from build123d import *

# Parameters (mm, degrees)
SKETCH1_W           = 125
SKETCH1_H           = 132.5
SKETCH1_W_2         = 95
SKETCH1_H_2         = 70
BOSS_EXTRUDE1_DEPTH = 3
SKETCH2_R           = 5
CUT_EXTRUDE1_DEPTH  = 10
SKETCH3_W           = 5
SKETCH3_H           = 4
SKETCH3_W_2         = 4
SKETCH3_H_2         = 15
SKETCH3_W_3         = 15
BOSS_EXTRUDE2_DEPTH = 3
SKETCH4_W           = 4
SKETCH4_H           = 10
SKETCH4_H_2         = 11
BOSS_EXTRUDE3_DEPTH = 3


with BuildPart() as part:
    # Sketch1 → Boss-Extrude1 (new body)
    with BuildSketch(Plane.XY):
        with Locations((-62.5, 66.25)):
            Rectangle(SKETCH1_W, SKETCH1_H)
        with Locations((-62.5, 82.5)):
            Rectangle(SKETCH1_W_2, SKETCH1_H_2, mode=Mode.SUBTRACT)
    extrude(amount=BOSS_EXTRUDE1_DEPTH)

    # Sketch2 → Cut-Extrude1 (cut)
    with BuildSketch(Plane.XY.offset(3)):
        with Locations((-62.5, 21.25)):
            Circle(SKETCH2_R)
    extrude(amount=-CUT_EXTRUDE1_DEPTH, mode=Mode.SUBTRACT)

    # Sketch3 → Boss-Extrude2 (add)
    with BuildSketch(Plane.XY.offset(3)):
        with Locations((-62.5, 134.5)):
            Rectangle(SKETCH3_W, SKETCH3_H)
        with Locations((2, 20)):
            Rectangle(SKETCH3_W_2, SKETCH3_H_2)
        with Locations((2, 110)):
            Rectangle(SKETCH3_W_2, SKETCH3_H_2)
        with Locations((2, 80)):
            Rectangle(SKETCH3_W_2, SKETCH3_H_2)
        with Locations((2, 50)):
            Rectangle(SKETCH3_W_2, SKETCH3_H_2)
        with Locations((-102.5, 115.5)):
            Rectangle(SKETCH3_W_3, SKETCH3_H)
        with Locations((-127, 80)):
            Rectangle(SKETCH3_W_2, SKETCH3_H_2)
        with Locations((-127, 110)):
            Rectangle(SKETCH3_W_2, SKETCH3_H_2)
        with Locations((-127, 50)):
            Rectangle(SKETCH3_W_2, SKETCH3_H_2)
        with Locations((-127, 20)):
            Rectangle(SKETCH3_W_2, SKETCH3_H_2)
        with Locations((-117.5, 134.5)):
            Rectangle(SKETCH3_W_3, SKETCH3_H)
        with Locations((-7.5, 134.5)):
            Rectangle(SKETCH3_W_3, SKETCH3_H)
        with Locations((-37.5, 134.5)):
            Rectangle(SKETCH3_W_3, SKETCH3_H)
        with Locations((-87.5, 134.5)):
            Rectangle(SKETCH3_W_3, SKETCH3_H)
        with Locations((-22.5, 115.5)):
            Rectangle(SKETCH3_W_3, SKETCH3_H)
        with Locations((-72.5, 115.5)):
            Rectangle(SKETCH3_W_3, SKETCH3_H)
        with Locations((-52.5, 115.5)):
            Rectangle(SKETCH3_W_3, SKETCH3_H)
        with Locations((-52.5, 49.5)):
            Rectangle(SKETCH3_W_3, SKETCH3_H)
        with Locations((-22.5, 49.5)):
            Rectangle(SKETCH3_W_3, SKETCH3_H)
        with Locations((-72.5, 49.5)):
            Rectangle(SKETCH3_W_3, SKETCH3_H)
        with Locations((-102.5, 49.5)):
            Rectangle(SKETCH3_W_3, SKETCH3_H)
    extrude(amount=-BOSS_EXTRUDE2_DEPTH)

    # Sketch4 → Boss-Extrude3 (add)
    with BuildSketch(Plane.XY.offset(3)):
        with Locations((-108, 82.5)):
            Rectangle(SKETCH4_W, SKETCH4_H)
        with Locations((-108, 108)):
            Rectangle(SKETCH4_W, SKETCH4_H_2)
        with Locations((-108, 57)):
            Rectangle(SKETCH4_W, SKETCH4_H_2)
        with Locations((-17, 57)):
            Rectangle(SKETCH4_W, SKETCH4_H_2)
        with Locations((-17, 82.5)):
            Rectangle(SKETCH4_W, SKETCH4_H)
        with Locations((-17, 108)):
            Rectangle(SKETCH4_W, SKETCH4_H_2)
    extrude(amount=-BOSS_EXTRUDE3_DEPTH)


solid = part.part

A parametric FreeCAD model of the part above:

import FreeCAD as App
import Part
import Sketcher
from FreeCAD import Vector
Q = App.Units.Quantity

doc = App.newDocument("Part")
body = doc.addObject("PartDesign::Body", "Body")

# Sketch on XY plane
sketch1 = body.newObject("Sketcher::SketchObject", "Sketch")
sketch1.AttachmentSupport = (doc.getObject("XY_Plane"), [""])
sketch1.MapMode = "FlatFace"
sketch1.addGeometry([
    Part.LineSegment(Vector(-125, 132.5, 0), Vector(-125, 0, 0)),  # 0
    Part.LineSegment(Vector(-125, 0, 0), Vector(0, 0, 0)),  # 1
    Part.LineSegment(Vector(0, 0, 0), Vector(0, 132.5, 0)),  # 2
    Part.LineSegment(Vector(0, 132.5, 0), Vector(-125, 132.5, 0)),  # 3
    Part.LineSegment(Vector(-15, 47.5, 0), Vector(-110, 47.5, 0)),  # 4
    Part.LineSegment(Vector(-110, 47.5, 0), Vector(-110, 117.5, 0)),  # 5
    Part.LineSegment(Vector(-110, 117.5, 0), Vector(-15, 117.5, 0)),  # 6
    Part.LineSegment(Vector(-15, 117.5, 0), Vector(-15, 47.5, 0)),  # 7
], False)
sketch1.addConstraint([
    Sketcher.Constraint("Coincident", 0, 2, 1, 1),
    Sketcher.Constraint("Coincident", 1, 2, 2, 1),
    Sketcher.Constraint("Coincident", 2, 2, 3, 1),
    Sketcher.Constraint("Coincident", 3, 2, 0, 1),
    Sketcher.Constraint("Coincident", 4, 2, 5, 1),
    Sketcher.Constraint("Coincident", 5, 2, 6, 1),
    Sketcher.Constraint("Coincident", 6, 2, 7, 1),
    Sketcher.Constraint("Coincident", 7, 2, 4, 1),
    Sketcher.Constraint("Vertical", 0),
    Sketcher.Constraint("Horizontal", 1),
    Sketcher.Constraint("Vertical", 2),
    Sketcher.Constraint("Horizontal", 3),
    Sketcher.Constraint("Horizontal", 4),
    Sketcher.Constraint("Vertical", 5),
    Sketcher.Constraint("Horizontal", 6),
    Sketcher.Constraint("Vertical", 7),
    Sketcher.Constraint("Coincident", 1, 2, -1, 1),
    Sketcher.Constraint("DistanceX", 1, 1, 1, 2, Q("125 mm")),
    Sketcher.Constraint("DistanceX", 4, 2, 4, 1, Q("95 mm")),
    Sketcher.Constraint("DistanceY", 5, 1, 5, 2, Q("70 mm")),
    Sketcher.Constraint("DistanceY", 0, 2, 0, 1, Q("132.5 mm")),
    Sketcher.Constraint("DistanceX", 4, 2, -1, 1, Q("110 mm")),
    Sketcher.Constraint("DistanceY", 4, 2, 3, 2, Q("85 mm")),
])
pad1 = body.newObject("PartDesign::Pad", "Pad")
pad1.Profile = sketch1
pad1.Length = 3

# Sketch on XY plane
sketch2 = body.newObject("Sketcher::SketchObject", "Sketch001")
sketch2.AttachmentSupport = (doc.getObject("XY_Plane"), [""])
sketch2.MapMode = "FlatFace"
sketch2.AttachmentOffset = App.Placement(Vector(0, 0, 3), App.Rotation())
sketch2.addGeometry(Part.Circle(Vector(-62.5, 21.25, 0), Vector(0, 0, 1), 5), False)
sketch2.addConstraint([
    Sketcher.Constraint("Diameter", 0, Q("10 mm")),
    Sketcher.Constraint("DistanceX", 0, 3, -1, 1, Q("62.5 mm")),
    Sketcher.Constraint("DistanceY", -1, 1, 0, 3, Q("21.25 mm")),
])
pocket1 = body.newObject("PartDesign::Pocket", "Pocket")
pocket1.Profile = sketch2
pocket1.Length = 10

# Sketch on XY plane
sketch3 = body.newObject("Sketcher::SketchObject", "Sketch002")
sketch3.AttachmentSupport = (doc.getObject("XY_Plane"), [""])
sketch3.MapMode = "FlatFace"
sketch3.AttachmentOffset = App.Placement(Vector(0, 0, 3), App.Rotation())
sketch3.addGeometry([
    Part.LineSegment(Vector(-65, 136.5, 0), Vector(-65, 132.5, 0)),  # 0
    Part.LineSegment(Vector(-65, 132.5, 0), Vector(-60, 132.5, 0)),  # 1
    Part.LineSegment(Vector(-60, 132.5, 0), Vector(-60, 136.5, 0)),  # 2
    Part.LineSegment(Vector(-60, 136.5, 0), Vector(-65, 136.5, 0)),  # 3
    Part.LineSegment(Vector(0, 27.5, 0), Vector(0, 12.5, 0)),  # 4
    Part.LineSegment(Vector(0, 12.5, 0), Vector(4, 12.5, 0)),  # 5
    Part.LineSegment(Vector(4, 12.5, 0), Vector(4, 27.5, 0)),  # 6
    Part.LineSegment(Vector(4, 27.5, 0), Vector(0, 27.5, 0)),  # 7
    Part.LineSegment(Vector(0, 117.5, 0), Vector(0, 102.5, 0)),  # 8
    Part.LineSegment(Vector(0, 102.5, 0), Vector(4, 102.5, 0)),  # 9
    Part.LineSegment(Vector(4, 102.5, 0), Vector(4, 117.5, 0)),  # 10
    Part.LineSegment(Vector(4, 117.5, 0), Vector(0, 117.5, 0)),  # 11
    Part.LineSegment(Vector(0, 87.5, 0), Vector(0, 72.5, 0)),  # 12
    Part.LineSegment(Vector(0, 72.5, 0), Vector(4, 72.5, 0)),  # 13
    Part.LineSegment(Vector(4, 72.5, 0), Vector(4, 87.5, 0)),  # 14
    Part.LineSegment(Vector(4, 87.5, 0), Vector(0, 87.5, 0)),  # 15
    Part.LineSegment(Vector(0, 57.5, 0), Vector(0, 42.5, 0)),  # 16
    Part.LineSegment(Vector(0, 42.5, 0), Vector(4, 42.5, 0)),  # 17
    Part.LineSegment(Vector(4, 42.5, 0), Vector(4, 57.5, 0)),  # 18
    Part.LineSegment(Vector(4, 57.5, 0), Vector(0, 57.5, 0)),  # 19
    Part.LineSegment(Vector(-110, 117.5, 0), Vector(-110, 113.5, 0)),  # 20
    Part.LineSegment(Vector(-110, 113.5, 0), Vector(-95, 113.5, 0)),  # 21
    Part.LineSegment(Vector(-95, 113.5, 0), Vector(-95, 117.5, 0)),  # 22
    Part.LineSegment(Vector(-95, 117.5, 0), Vector(-110, 117.5, 0)),  # 23
    Part.LineSegment(Vector(-129, 87.5, 0), Vector(-129, 72.5, 0)),  # 24
    Part.LineSegment(Vector(-129, 72.5, 0), Vector(-125, 72.5, 0)),  # 25
    Part.LineSegment(Vector(-125, 72.5, 0), Vector(-125, 87.5, 0)),  # 26
    Part.LineSegment(Vector(-125, 87.5, 0), Vector(-129, 87.5, 0)),  # 27
    Part.LineSegment(Vector(-129, 117.5, 0), Vector(-129, 102.5, 0)),  # 28
    Part.LineSegment(Vector(-129, 102.5, 0), Vector(-125, 102.5, 0)),  # 29
    Part.LineSegment(Vector(-125, 102.5, 0), Vector(-125, 117.5, 0)),  # 30
    Part.LineSegment(Vector(-125, 117.5, 0), Vector(-129, 117.5, 0)),  # 31
    Part.LineSegment(Vector(-129, 57.5, 0), Vector(-129, 42.5, 0)),  # 32
    Part.LineSegment(Vector(-129, 42.5, 0), Vector(-125, 42.5, 0)),  # 33
    Part.LineSegment(Vector(-125, 42.5, 0), Vector(-125, 57.5, 0)),  # 34
    Part.LineSegment(Vector(-125, 57.5, 0), Vector(-129, 57.5, 0)),  # 35
    Part.LineSegment(Vector(-129, 27.5, 0), Vector(-129, 12.5, 0)),  # 36
    Part.LineSegment(Vector(-129, 12.5, 0), Vector(-125, 12.5, 0)),  # 37
    Part.LineSegment(Vector(-125, 12.5, 0), Vector(-125, 27.5, 0)),  # 38
    Part.LineSegment(Vector(-125, 27.5, 0), Vector(-129, 27.5, 0)),  # 39
    Part.LineSegment(Vector(-125, 136.5, 0), Vector(-125, 132.5, 0)),  # 40
    Part.LineSegment(Vector(-125, 132.5, 0), Vector(-110, 132.5, 0)),  # 41
    Part.LineSegment(Vector(-110, 132.5, 0), Vector(-110, 136.5, 0)),  # 42
    Part.LineSegment(Vector(-110, 136.5, 0), Vector(-125, 136.5, 0)),  # 43
    Part.LineSegment(Vector(-15, 136.5, 0), Vector(-15, 132.5, 0)),  # 44
    Part.LineSegment(Vector(-15, 132.5, 0), Vector(0, 132.5, 0)),  # 45
    Part.LineSegment(Vector(0, 132.5, 0), Vector(0, 136.5, 0)),  # 46
    Part.LineSegment(Vector(0, 136.5, 0), Vector(-15, 136.5, 0)),  # 47
    Part.LineSegment(Vector(-45, 136.5, 0), Vector(-45, 132.5, 0)),  # 48
    Part.LineSegment(Vector(-45, 132.5, 0), Vector(-30, 132.5, 0)),  # 49
    Part.LineSegment(Vector(-30, 132.5, 0), Vector(-30, 136.5, 0)),  # 50
    Part.LineSegment(Vector(-30, 136.5, 0), Vector(-45, 136.5, 0)),  # 51
    Part.LineSegment(Vector(-95, 136.5, 0), Vector(-95, 132.5, 0)),  # 52
    Part.LineSegment(Vector(-95, 132.5, 0), Vector(-80, 132.5, 0)),  # 53
    Part.LineSegment(Vector(-80, 132.5, 0), Vector(-80, 136.5, 0)),  # 54
    Part.LineSegment(Vector(-80, 136.5, 0), Vector(-95, 136.5, 0)),  # 55
    Part.LineSegment(Vector(-30, 117.5, 0), Vector(-30, 113.5, 0)),  # 56
    Part.LineSegment(Vector(-30, 113.5, 0), Vector(-15, 113.5, 0)),  # 57
    Part.LineSegment(Vector(-15, 113.5, 0), Vector(-15, 117.5, 0)),  # 58
    Part.LineSegment(Vector(-15, 117.5, 0), Vector(-30, 117.5, 0)),  # 59
    Part.LineSegment(Vector(-80, 117.5, 0), Vector(-80, 113.5, 0)),  # 60
    Part.LineSegment(Vector(-80, 113.5, 0), Vector(-65, 113.5, 0)),  # 61
    Part.LineSegment(Vector(-65, 113.5, 0), Vector(-65, 117.5, 0)),  # 62
    Part.LineSegment(Vector(-65, 117.5, 0), Vector(-80, 117.5, 0)),  # 63
    Part.LineSegment(Vector(-60, 117.5, 0), Vector(-60, 113.5, 0)),  # 64
    Part.LineSegment(Vector(-60, 113.5, 0), Vector(-45, 113.5, 0)),  # 65
    Part.LineSegment(Vector(-45, 113.5, 0), Vector(-45, 117.5, 0)),  # 66
    Part.LineSegment(Vector(-45, 117.5, 0), Vector(-60, 117.5, 0)),  # 67
    Part.LineSegment(Vector(-60, 51.5, 0), Vector(-60, 47.5, 0)),  # 68
    Part.LineSegment(Vector(-60, 47.5, 0), Vector(-45, 47.5, 0)),  # 69
    Part.LineSegment(Vector(-45, 47.5, 0), Vector(-45, 51.5, 0)),  # 70
    Part.LineSegment(Vector(-45, 51.5, 0), Vector(-60, 51.5, 0)),  # 71
    Part.LineSegment(Vector(-30, 51.5, 0), Vector(-30, 47.5, 0)),  # 72
    Part.LineSegment(Vector(-30, 47.5, 0), Vector(-15, 47.5, 0)),  # 73
    Part.LineSegment(Vector(-15, 47.5, 0), Vector(-15, 51.5, 0)),  # 74
    Part.LineSegment(Vector(-15, 51.5, 0), Vector(-30, 51.5, 0)),  # 75
    Part.LineSegment(Vector(-80, 51.5, 0), Vector(-80, 47.5, 0)),  # 76
    Part.LineSegment(Vector(-80, 47.5, 0), Vector(-65, 47.5, 0)),  # 77
    Part.LineSegment(Vector(-65, 47.5, 0), Vector(-65, 51.5, 0)),  # 78
    Part.LineSegment(Vector(-65, 51.5, 0), Vector(-80, 51.5, 0)),  # 79
    Part.LineSegment(Vector(-110, 51.5, 0), Vector(-110, 47.5, 0)),  # 80
    Part.LineSegment(Vector(-110, 47.5, 0), Vector(-95, 47.5, 0)),  # 81
    Part.LineSegment(Vector(-95, 47.5, 0), Vector(-95, 51.5, 0)),  # 82
    Part.LineSegment(Vector(-95, 51.5, 0), Vector(-110, 51.5, 0)),  # 83
], False)
sketch3.addConstraint([
    Sketcher.Constraint("Coincident", 0, 2, 1, 1),
    Sketcher.Constraint("Coincident", 1, 2, 2, 1),
    Sketcher.Constraint("Coincident", 2, 2, 3, 1),
    Sketcher.Constraint("Coincident", 3, 2, 0, 1),
    Sketcher.Constraint("Coincident", 4, 2, 5, 1),
    Sketcher.Constraint("Coincident", 5, 2, 6, 1),
    Sketcher.Constraint("Coincident", 6, 2, 7, 1),
    Sketcher.Constraint("Coincident", 7, 2, 4, 1),
    Sketcher.Constraint("Coincident", 8, 2, 9, 1),
    Sketcher.Constraint("Coincident", 9, 2, 10, 1),
    Sketcher.Constraint("Coincident", 10, 2, 11, 1),
    Sketcher.Constraint("Coincident", 11, 2, 8, 1),
    Sketcher.Constraint("Coincident", 12, 2, 13, 1),
    Sketcher.Constraint("Coincident", 13, 2, 14, 1),
    Sketcher.Constraint("Coincident", 14, 2, 15, 1),
    Sketcher.Constraint("Coincident", 15, 2, 12, 1),
    Sketcher.Constraint("Coincident", 16, 2, 17, 1),
    Sketcher.Constraint("Coincident", 17, 2, 18, 1),
    Sketcher.Constraint("Coincident", 18, 2, 19, 1),
    Sketcher.Constraint("Coincident", 19, 2, 16, 1),
    Sketcher.Constraint("Coincident", 20, 2, 21, 1),
    Sketcher.Constraint("Coincident", 21, 2, 22, 1),
    Sketcher.Constraint("Coincident", 22, 2, 23, 1),
    Sketcher.Constraint("Coincident", 23, 2, 20, 1),
    Sketcher.Constraint("Coincident", 24, 2, 25, 1),
    Sketcher.Constraint("Coincident", 25, 2, 26, 1),
    Sketcher.Constraint("Coincident", 26, 2, 27, 1),
    Sketcher.Constraint("Coincident", 27, 2, 24, 1),
    Sketcher.Constraint("Coincident", 28, 2, 29, 1),
    Sketcher.Constraint("Coincident", 29, 2, 30, 1),
    Sketcher.Constraint("Coincident", 30, 2, 31, 1),
    Sketcher.Constraint("Coincident", 31, 2, 28, 1),
    Sketcher.Constraint("Coincident", 32, 2, 33, 1),
    Sketcher.Constraint("Coincident", 33, 2, 34, 1),
    Sketcher.Constraint("Coincident", 34, 2, 35, 1),
    Sketcher.Constraint("Coincident", 35, 2, 32, 1),
    Sketcher.Constraint("Coincident", 36, 2, 37, 1),
    Sketcher.Constraint("Coincident", 37, 2, 38, 1),
    Sketcher.Constraint("Coincident", 38, 2, 39, 1),
    Sketcher.Constraint("Coincident", 39, 2, 36, 1),
    Sketcher.Constraint("Coincident", 40, 2, 41, 1),
    Sketcher.Constraint("Coincident", 41, 2, 42, 1),
    Sketcher.Constraint("Coincident", 42, 2, 43, 1),
    Sketcher.Constraint("Coincident", 43, 2, 40, 1),
    Sketcher.Constraint("Coincident", 44, 2, 45, 1),
    Sketcher.Constraint("Coincident", 45, 2, 46, 1),
    Sketcher.Constraint("Coincident", 46, 2, 47, 1),
    Sketcher.Constraint("Coincident", 47, 2, 44, 1),
    Sketcher.Constraint("Coincident", 48, 2, 49, 1),
    Sketcher.Constraint("Coincident", 49, 2, 50, 1),
    Sketcher.Constraint("Coincident", 50, 2, 51, 1),
    Sketcher.Constraint("Coincident", 51, 2, 48, 1),
    Sketcher.Constraint("Coincident", 52, 2, 53, 1),
    Sketcher.Constraint("Coincident", 53, 2, 54, 1),
    Sketcher.Constraint("Coincident", 54, 2, 55, 1),
    Sketcher.Constraint("Coincident", 55, 2, 52, 1),
    Sketcher.Constraint("Coincident", 56, 2, 57, 1),
    Sketcher.Constraint("Coincident", 57, 2, 58, 1),
    Sketcher.Constraint("Coincident", 58, 2, 59, 1),
    Sketcher.Constraint("Coincident", 59, 2, 56, 1),
    Sketcher.Constraint("Coincident", 60, 2, 61, 1),
    Sketcher.Constraint("Coincident", 61, 2, 62, 1),
    Sketcher.Constraint("Coincident", 62, 2, 63, 1),
    Sketcher.Constraint("Coincident", 63, 2, 60, 1),
    Sketcher.Constraint("Coincident", 64, 2, 65, 1),
    Sketcher.Constraint("Coincident", 65, 2, 66, 1),
    Sketcher.Constraint("Coincident", 66, 2, 67, 1),
    Sketcher.Constraint("Coincident", 67, 2, 64, 1),
    Sketcher.Constraint("Coincident", 68, 2, 69, 1),
    Sketcher.Constraint("Coincident", 69, 2, 70, 1),
    Sketcher.Constraint("Coincident", 70, 2, 71, 1),
    Sketcher.Constraint("Coincident", 71, 2, 68, 1),
    Sketcher.Constraint("Coincident", 72, 2, 73, 1),
    Sketcher.Constraint("Coincident", 73, 2, 74, 1),
    Sketcher.Constraint("Coincident", 74, 2, 75, 1),
    Sketcher.Constraint("Coincident", 75, 2, 72, 1),
    Sketcher.Constraint("Coincident", 76, 2, 77, 1),
    Sketcher.Constraint("Coincident", 77, 2, 78, 1),
    Sketcher.Constraint("Coincident", 78, 2, 79, 1),
    Sketcher.Constraint("Coincident", 79, 2, 76, 1),
    Sketcher.Constraint("Coincident", 80, 2, 81, 1),
    Sketcher.Constraint("Coincident", 81, 2, 82, 1),
    Sketcher.Constraint("Coincident", 82, 2, 83, 1),
    Sketcher.Constraint("Coincident", 83, 2, 80, 1),
    Sketcher.Constraint("Vertical", 0),
    Sketcher.Constraint("Horizontal", 1),
    Sketcher.Constraint("Vertical", 2),
    Sketcher.Constraint("Horizontal", 3),
    Sketcher.Constraint("Vertical", 4),
    Sketcher.Constraint("Horizontal", 5),
    Sketcher.Constraint("Vertical", 6),
    Sketcher.Constraint("Horizontal", 7),
    Sketcher.Constraint("Vertical", 8),
    Sketcher.Constraint("Horizontal", 9),
    Sketcher.Constraint("Vertical", 10),
    Sketcher.Constraint("Horizontal", 11),
    Sketcher.Constraint("Vertical", 12),
    Sketcher.Constraint("Horizontal", 13),
    Sketcher.Constraint("Vertical", 14),
    Sketcher.Constraint("Horizontal", 15),
    Sketcher.Constraint("Vertical", 16),
    Sketcher.Constraint("Horizontal", 17),
    Sketcher.Constraint("Vertical", 18),
    Sketcher.Constraint("Horizontal", 19),
    Sketcher.Constraint("Vertical", 20),
    Sketcher.Constraint("Horizontal", 21),
    Sketcher.Constraint("Vertical", 22),
    Sketcher.Constraint("Horizontal", 23),
    Sketcher.Constraint("Vertical", 24),
    Sketcher.Constraint("Horizontal", 25),
    Sketcher.Constraint("Vertical", 26),
    Sketcher.Constraint("Horizontal", 27),
    Sketcher.Constraint("Vertical", 28),
    Sketcher.Constraint("Horizontal", 29),
    Sketcher.Constraint("Vertical", 30),
    Sketcher.Constraint("Horizontal", 31),
    Sketcher.Constraint("Vertical", 32),
    Sketcher.Constraint("Horizontal", 33),
    Sketcher.Constraint("Vertical", 34),
    Sketcher.Constraint("Horizontal", 35),
    Sketcher.Constraint("Vertical", 36),
    Sketcher.Constraint("Horizontal", 37),
    Sketcher.Constraint("Vertical", 38),
    Sketcher.Constraint("Horizontal", 39),
    Sketcher.Constraint("Vertical", 40),
    Sketcher.Constraint("Horizontal", 41),
    Sketcher.Constraint("Vertical", 42),
    Sketcher.Constraint("Horizontal", 43),
    Sketcher.Constraint("Vertical", 44),
    Sketcher.Constraint("Horizontal", 45),
    Sketcher.Constraint("Vertical", 46),
    Sketcher.Constraint("Horizontal", 47),
    Sketcher.Constraint("Vertical", 48),
    Sketcher.Constraint("Horizontal", 49),
    Sketcher.Constraint("Vertical", 50),
    Sketcher.Constraint("Horizontal", 51),
    Sketcher.Constraint("Vertical", 52),
    Sketcher.Constraint("Horizontal", 53),
    Sketcher.Constraint("Vertical", 54),
    Sketcher.Constraint("Horizontal", 55),
    Sketcher.Constraint("Vertical", 56),
    Sketcher.Constraint("Horizontal", 57),
    Sketcher.Constraint("Vertical", 58),
    Sketcher.Constraint("Horizontal", 59),
    Sketcher.Constraint("Vertical", 60),
    Sketcher.Constraint("Horizontal", 61),
    Sketcher.Constraint("Vertical", 62),
    Sketcher.Constraint("Horizontal", 63),
    Sketcher.Constraint("Vertical", 64),
    Sketcher.Constraint("Horizontal", 65),
    Sketcher.Constraint("Vertical", 66),
    Sketcher.Constraint("Horizontal", 67),
    Sketcher.Constraint("Vertical", 68),
    Sketcher.Constraint("Horizontal", 69),
    Sketcher.Constraint("Vertical", 70),
    Sketcher.Constraint("Horizontal", 71),
    Sketcher.Constraint("Vertical", 72),
    Sketcher.Constraint("Horizontal", 73),
    Sketcher.Constraint("Vertical", 74),
    Sketcher.Constraint("Horizontal", 75),
    Sketcher.Constraint("Vertical", 76),
    Sketcher.Constraint("Horizontal", 77),
    Sketcher.Constraint("Vertical", 78),
    Sketcher.Constraint("Horizontal", 79),
    Sketcher.Constraint("Vertical", 80),
    Sketcher.Constraint("Horizontal", 81),
    Sketcher.Constraint("Vertical", 82),
    Sketcher.Constraint("Horizontal", 83),
    Sketcher.Constraint("PointOnObject", 4, 2, -2),
    Sketcher.Constraint("PointOnObject", 8, 2, -2),
    Sketcher.Constraint("PointOnObject", 12, 2, -2),
    Sketcher.Constraint("PointOnObject", 16, 2, -2),
    Sketcher.Constraint("PointOnObject", 45, 2, -2),
    Sketcher.Constraint("Horizontal", 11, 2, 22, 2),
    Sketcher.Constraint("Horizontal", 13, 2, 24, 2),
    Sketcher.Constraint("Horizontal", 15, 2, 26, 2),
    Sketcher.Constraint("Horizontal", 9, 2, 28, 2),
    Sketcher.Constraint("Horizontal", 23, 2, 30, 2),
    Sketcher.Constraint("Horizontal", 17, 2, 32, 2),
    Sketcher.Constraint("Horizontal", 19, 2, 34, 2),
    Sketcher.Constraint("Horizontal", 5, 2, 36, 2),
    Sketcher.Constraint("Horizontal", 7, 2, 38, 2),
    Sketcher.Constraint("Horizontal", 1, 2, 40, 2),
    Sketcher.Constraint("Horizontal", 3, 2, 42, 2),
    Sketcher.Constraint("Horizontal", 41, 2, 44, 2),
    Sketcher.Constraint("Horizontal", 43, 2, 46, 2),
    Sketcher.Constraint("Horizontal", 45, 2, 48, 2),
    Sketcher.Constraint("Horizontal", 47, 2, 50, 2),
    Sketcher.Constraint("Horizontal", 49, 2, 52, 2),
    Sketcher.Constraint("Horizontal", 51, 2, 54, 2),
    Sketcher.Constraint("Horizontal", 21, 2, 56, 2),
    Sketcher.Constraint("Horizontal", 31, 2, 58, 2),
    Sketcher.Constraint("Horizontal", 57, 2, 60, 2),
    Sketcher.Constraint("Horizontal", 59, 2, 62, 2),
    Sketcher.Constraint("Horizontal", 61, 2, 64, 2),
    Sketcher.Constraint("Horizontal", 63, 2, 66, 2),
    Sketcher.Constraint("Horizontal", 69, 2, 72, 2),
    Sketcher.Constraint("Horizontal", 71, 2, 74, 2),
    Sketcher.Constraint("Horizontal", 73, 2, 76, 2),
    Sketcher.Constraint("Horizontal", 75, 2, 78, 2),
    Sketcher.Constraint("Horizontal", 77, 2, 80, 2),
    Sketcher.Constraint("Horizontal", 79, 2, 82, 2),
    Sketcher.Constraint("Vertical", 6, 2, 9, 2),
    Sketcher.Constraint("Vertical", 10, 2, 13, 2),
    Sketcher.Constraint("Vertical", 14, 2, 17, 2),
    Sketcher.Constraint("Vertical", 27, 2, 28, 2),
    Sketcher.Constraint("Vertical", 26, 2, 29, 2),
    Sketcher.Constraint("Vertical", 31, 2, 32, 2),
    Sketcher.Constraint("Vertical", 30, 2, 33, 2),
    Sketcher.Constraint("Vertical", 35, 2, 36, 2),
    Sketcher.Constraint("Vertical", 34, 2, 37, 2),
    Sketcher.Constraint("Vertical", 38, 2, 40, 2),
    Sketcher.Constraint("Vertical", 23, 2, 41, 2),
    Sketcher.Constraint("Vertical", 22, 2, 52, 2),
    Sketcher.Constraint("Vertical", 50, 2, 56, 2),
    Sketcher.Constraint("Vertical", 47, 2, 57, 2),
    Sketcher.Constraint("Vertical", 54, 2, 60, 2),
    Sketcher.Constraint("Vertical", 3, 2, 61, 2),
    Sketcher.Constraint("Vertical", 2, 2, 64, 2),
    Sketcher.Constraint("Vertical", 51, 2, 65, 2),
    Sketcher.Constraint("Vertical", 67, 2, 68, 2),
    Sketcher.Constraint("Vertical", 66, 2, 69, 2),
    Sketcher.Constraint("Vertical", 59, 2, 72, 2),
    Sketcher.Constraint("Vertical", 58, 2, 73, 2),
    Sketcher.Constraint("Vertical", 63, 2, 76, 2),
    Sketcher.Constraint("Vertical", 62, 2, 77, 2),
    Sketcher.Constraint("Vertical", 42, 2, 80, 2),
    Sketcher.Constraint("Vertical", 55, 2, 81, 2),
    Sketcher.Constraint("Equal", 19, 25),
    Sketcher.Constraint("Equal", 23, 41),
    Sketcher.Constraint("Equal", 43, 45),
    Sketcher.Constraint("Equal", 47, 49),
    Sketcher.Constraint("Equal", 51, 53),
    Sketcher.Constraint("Equal", 55, 57),
    Sketcher.Constraint("Equal", 59, 61),
    Sketcher.Constraint("Equal", 63, 65),
    Sketcher.Constraint("Equal", 39, 0),
    Sketcher.Constraint("Equal", 83, 4),
    Sketcher.Constraint("Equal", 6, 8),
    Sketcher.Constraint("Equal", 10, 12),
    Sketcher.Constraint("Equal", 14, 16),
    Sketcher.Constraint("Equal", 2, 20),
    Sketcher.Constraint("Equal", 66, 68),
    Sketcher.Constraint("DistanceX", 1, 1, 1, 2, Q("5 mm")),
    Sketcher.Constraint("DistanceX", 5, 1, 5, 2, Q("4 mm")),
    Sketcher.Constraint("DistanceX", 21, 1, 21, 2, Q("15 mm")),
    Sketcher.Constraint("DistanceY", -1, 1, 0, 2, Q("132.5 mm")),
    Sketcher.Constraint("DistanceY", -1, 1, 4, 2, Q("12.5 mm")),
    Sketcher.Constraint("DistanceY", -1, 1, 8, 2, Q("102.5 mm")),
    Sketcher.Constraint("DistanceY", -1, 1, 12, 2, Q("72.5 mm")),
    Sketcher.Constraint("DistanceY", -1, 1, 16, 2, Q("42.5 mm")),
    Sketcher.Constraint("DistanceY", -1, 1, 68, 2, Q("47.5 mm")),
])
pad2 = body.newObject("PartDesign::Pad", "Pad001")
pad2.Profile = sketch3
pad2.Length = 3
pad2.Reversed = True

# Sketch on XY plane
sketch4 = body.newObject("Sketcher::SketchObject", "Sketch003")
sketch4.AttachmentSupport = (doc.getObject("XY_Plane"), [""])
sketch4.MapMode = "FlatFace"
sketch4.AttachmentOffset = App.Placement(Vector(0, 0, 3), App.Rotation())
sketch4.addGeometry([
    Part.LineSegment(Vector(-110, 87.5, 0), Vector(-110, 77.5, 0)),  # 0
    Part.LineSegment(Vector(-110, 77.5, 0), Vector(-106, 77.5, 0)),  # 1
    Part.LineSegment(Vector(-106, 77.5, 0), Vector(-106, 87.5, 0)),  # 2
    Part.LineSegment(Vector(-106, 87.5, 0), Vector(-110, 87.5, 0)),  # 3
    Part.LineSegment(Vector(-110, 113.5, 0), Vector(-110, 102.5, 0)),  # 4
    Part.LineSegment(Vector(-110, 102.5, 0), Vector(-106, 102.5, 0)),  # 5
    Part.LineSegment(Vector(-106, 102.5, 0), Vector(-106, 113.5, 0)),  # 6
    Part.LineSegment(Vector(-106, 113.5, 0), Vector(-110, 113.5, 0)),  # 7
    Part.LineSegment(Vector(-110, 62.5, 0), Vector(-110, 51.5, 0)),  # 8
    Part.LineSegment(Vector(-110, 51.5, 0), Vector(-106, 51.5, 0)),  # 9
    Part.LineSegment(Vector(-106, 51.5, 0), Vector(-106, 62.5, 0)),  # 10
    Part.LineSegment(Vector(-106, 62.5, 0), Vector(-110, 62.5, 0)),  # 11
    Part.LineSegment(Vector(-19, 62.5, 0), Vector(-19, 51.5, 0)),  # 12
    Part.LineSegment(Vector(-19, 51.5, 0), Vector(-15, 51.5, 0)),  # 13
    Part.LineSegment(Vector(-15, 51.5, 0), Vector(-15, 62.5, 0)),  # 14
    Part.LineSegment(Vector(-15, 62.5, 0), Vector(-19, 62.5, 0)),  # 15
    Part.LineSegment(Vector(-19, 87.5, 0), Vector(-19, 77.5, 0)),  # 16
    Part.LineSegment(Vector(-19, 77.5, 0), Vector(-15, 77.5, 0)),  # 17
    Part.LineSegment(Vector(-15, 77.5, 0), Vector(-15, 87.5, 0)),  # 18
    Part.LineSegment(Vector(-15, 87.5, 0), Vector(-19, 87.5, 0)),  # 19
    Part.LineSegment(Vector(-19, 113.5, 0), Vector(-19, 102.5, 0)),  # 20
    Part.LineSegment(Vector(-19, 102.5, 0), Vector(-15, 102.5, 0)),  # 21
    Part.LineSegment(Vector(-15, 102.5, 0), Vector(-15, 113.5, 0)),  # 22
    Part.LineSegment(Vector(-15, 113.5, 0), Vector(-19, 113.5, 0)),  # 23
], False)
sketch4.addConstraint([
    Sketcher.Constraint("Coincident", 0, 2, 1, 1),
    Sketcher.Constraint("Coincident", 1, 2, 2, 1),
    Sketcher.Constraint("Coincident", 2, 2, 3, 1),
    Sketcher.Constraint("Coincident", 3, 2, 0, 1),
    Sketcher.Constraint("Coincident", 4, 2, 5, 1),
    Sketcher.Constraint("Coincident", 5, 2, 6, 1),
    Sketcher.Constraint("Coincident", 6, 2, 7, 1),
    Sketcher.Constraint("Coincident", 7, 2, 4, 1),
    Sketcher.Constraint("Coincident", 8, 2, 9, 1),
    Sketcher.Constraint("Coincident", 9, 2, 10, 1),
    Sketcher.Constraint("Coincident", 10, 2, 11, 1),
    Sketcher.Constraint("Coincident", 11, 2, 8, 1),
    Sketcher.Constraint("Coincident", 12, 2, 13, 1),
    Sketcher.Constraint("Coincident", 13, 2, 14, 1),
    Sketcher.Constraint("Coincident", 14, 2, 15, 1),
    Sketcher.Constraint("Coincident", 15, 2, 12, 1),
    Sketcher.Constraint("Coincident", 16, 2, 17, 1),
    Sketcher.Constraint("Coincident", 17, 2, 18, 1),
    Sketcher.Constraint("Coincident", 18, 2, 19, 1),
    Sketcher.Constraint("Coincident", 19, 2, 16, 1),
    Sketcher.Constraint("Coincident", 20, 2, 21, 1),
    Sketcher.Constraint("Coincident", 21, 2, 22, 1),
    Sketcher.Constraint("Coincident", 22, 2, 23, 1),
    Sketcher.Constraint("Coincident", 23, 2, 20, 1),
    Sketcher.Constraint("Vertical", 0),
    Sketcher.Constraint("Horizontal", 1),
    Sketcher.Constraint("Vertical", 2),
    Sketcher.Constraint("Horizontal", 3),
    Sketcher.Constraint("Vertical", 4),
    Sketcher.Constraint("Horizontal", 5),
    Sketcher.Constraint("Vertical", 6),
    Sketcher.Constraint("Horizontal", 7),
    Sketcher.Constraint("Vertical", 8),
    Sketcher.Constraint("Horizontal", 9),
    Sketcher.Constraint("Vertical", 10),
    Sketcher.Constraint("Horizontal", 11),
    Sketcher.Constraint("Vertical", 12),
    Sketcher.Constraint("Horizontal", 13),
    Sketcher.Constraint("Vertical", 14),
    Sketcher.Constraint("Horizontal", 15),
    Sketcher.Constraint("Vertical", 16),
    Sketcher.Constraint("Horizontal", 17),
    Sketcher.Constraint("Vertical", 18),
    Sketcher.Constraint("Horizontal", 19),
    Sketcher.Constraint("Vertical", 20),
    Sketcher.Constraint("Horizontal", 21),
    Sketcher.Constraint("Vertical", 22),
    Sketcher.Constraint("Horizontal", 23),
    Sketcher.Constraint("Horizontal", 9, 2, 12, 2),
    Sketcher.Constraint("Horizontal", 11, 2, 14, 2),
    Sketcher.Constraint("Horizontal", 1, 2, 16, 2),
    Sketcher.Constraint("Horizontal", 3, 2, 18, 2),
    Sketcher.Constraint("Horizontal", 5, 2, 20, 2),
    Sketcher.Constraint("Horizontal", 7, 2, 22, 2),
    Sketcher.Constraint("Vertical", 3, 2, 4, 2),
    Sketcher.Constraint("Vertical", 2, 2, 5, 2),
    Sketcher.Constraint("Vertical", 7, 2, 8, 2),
    Sketcher.Constraint("Vertical", 6, 2, 9, 2),
    Sketcher.Constraint("Vertical", 15, 2, 16, 2),
    Sketcher.Constraint("Vertical", 14, 2, 17, 2),
    Sketcher.Constraint("Vertical", 19, 2, 20, 2),
    Sketcher.Constraint("Vertical", 18, 2, 21, 2),
    Sketcher.Constraint("Equal", 11, 13),
    Sketcher.Constraint("Equal", 6, 8),
    Sketcher.Constraint("DistanceX", 1, 1, 1, 2, Q("4 mm")),
    Sketcher.Constraint("DistanceY", 0, 2, 0, 1, Q("10 mm")),
    Sketcher.Constraint("DistanceY", 4, 2, 4, 1, Q("11 mm")),
    Sketcher.Constraint("DistanceX", 0, 2, -1, 1, Q("110 mm")),
    Sketcher.Constraint("DistanceX", 12, 2, -1, 1, Q("19 mm")),
    Sketcher.Constraint("DistanceY", 3, 2, 4, 2, Q("15 mm")),
    Sketcher.Constraint("DistanceY", 8, 2, 0, 2, Q("26 mm")),
    Sketcher.Constraint("DistanceY", -1, 1, 0, 2, Q("77.5 mm")),
])
pad3 = body.newObject("PartDesign::Pad", "Pad002")
pad3.Profile = sketch4
pad3.Length = 3
pad3.Reversed = True

doc.recompute()
